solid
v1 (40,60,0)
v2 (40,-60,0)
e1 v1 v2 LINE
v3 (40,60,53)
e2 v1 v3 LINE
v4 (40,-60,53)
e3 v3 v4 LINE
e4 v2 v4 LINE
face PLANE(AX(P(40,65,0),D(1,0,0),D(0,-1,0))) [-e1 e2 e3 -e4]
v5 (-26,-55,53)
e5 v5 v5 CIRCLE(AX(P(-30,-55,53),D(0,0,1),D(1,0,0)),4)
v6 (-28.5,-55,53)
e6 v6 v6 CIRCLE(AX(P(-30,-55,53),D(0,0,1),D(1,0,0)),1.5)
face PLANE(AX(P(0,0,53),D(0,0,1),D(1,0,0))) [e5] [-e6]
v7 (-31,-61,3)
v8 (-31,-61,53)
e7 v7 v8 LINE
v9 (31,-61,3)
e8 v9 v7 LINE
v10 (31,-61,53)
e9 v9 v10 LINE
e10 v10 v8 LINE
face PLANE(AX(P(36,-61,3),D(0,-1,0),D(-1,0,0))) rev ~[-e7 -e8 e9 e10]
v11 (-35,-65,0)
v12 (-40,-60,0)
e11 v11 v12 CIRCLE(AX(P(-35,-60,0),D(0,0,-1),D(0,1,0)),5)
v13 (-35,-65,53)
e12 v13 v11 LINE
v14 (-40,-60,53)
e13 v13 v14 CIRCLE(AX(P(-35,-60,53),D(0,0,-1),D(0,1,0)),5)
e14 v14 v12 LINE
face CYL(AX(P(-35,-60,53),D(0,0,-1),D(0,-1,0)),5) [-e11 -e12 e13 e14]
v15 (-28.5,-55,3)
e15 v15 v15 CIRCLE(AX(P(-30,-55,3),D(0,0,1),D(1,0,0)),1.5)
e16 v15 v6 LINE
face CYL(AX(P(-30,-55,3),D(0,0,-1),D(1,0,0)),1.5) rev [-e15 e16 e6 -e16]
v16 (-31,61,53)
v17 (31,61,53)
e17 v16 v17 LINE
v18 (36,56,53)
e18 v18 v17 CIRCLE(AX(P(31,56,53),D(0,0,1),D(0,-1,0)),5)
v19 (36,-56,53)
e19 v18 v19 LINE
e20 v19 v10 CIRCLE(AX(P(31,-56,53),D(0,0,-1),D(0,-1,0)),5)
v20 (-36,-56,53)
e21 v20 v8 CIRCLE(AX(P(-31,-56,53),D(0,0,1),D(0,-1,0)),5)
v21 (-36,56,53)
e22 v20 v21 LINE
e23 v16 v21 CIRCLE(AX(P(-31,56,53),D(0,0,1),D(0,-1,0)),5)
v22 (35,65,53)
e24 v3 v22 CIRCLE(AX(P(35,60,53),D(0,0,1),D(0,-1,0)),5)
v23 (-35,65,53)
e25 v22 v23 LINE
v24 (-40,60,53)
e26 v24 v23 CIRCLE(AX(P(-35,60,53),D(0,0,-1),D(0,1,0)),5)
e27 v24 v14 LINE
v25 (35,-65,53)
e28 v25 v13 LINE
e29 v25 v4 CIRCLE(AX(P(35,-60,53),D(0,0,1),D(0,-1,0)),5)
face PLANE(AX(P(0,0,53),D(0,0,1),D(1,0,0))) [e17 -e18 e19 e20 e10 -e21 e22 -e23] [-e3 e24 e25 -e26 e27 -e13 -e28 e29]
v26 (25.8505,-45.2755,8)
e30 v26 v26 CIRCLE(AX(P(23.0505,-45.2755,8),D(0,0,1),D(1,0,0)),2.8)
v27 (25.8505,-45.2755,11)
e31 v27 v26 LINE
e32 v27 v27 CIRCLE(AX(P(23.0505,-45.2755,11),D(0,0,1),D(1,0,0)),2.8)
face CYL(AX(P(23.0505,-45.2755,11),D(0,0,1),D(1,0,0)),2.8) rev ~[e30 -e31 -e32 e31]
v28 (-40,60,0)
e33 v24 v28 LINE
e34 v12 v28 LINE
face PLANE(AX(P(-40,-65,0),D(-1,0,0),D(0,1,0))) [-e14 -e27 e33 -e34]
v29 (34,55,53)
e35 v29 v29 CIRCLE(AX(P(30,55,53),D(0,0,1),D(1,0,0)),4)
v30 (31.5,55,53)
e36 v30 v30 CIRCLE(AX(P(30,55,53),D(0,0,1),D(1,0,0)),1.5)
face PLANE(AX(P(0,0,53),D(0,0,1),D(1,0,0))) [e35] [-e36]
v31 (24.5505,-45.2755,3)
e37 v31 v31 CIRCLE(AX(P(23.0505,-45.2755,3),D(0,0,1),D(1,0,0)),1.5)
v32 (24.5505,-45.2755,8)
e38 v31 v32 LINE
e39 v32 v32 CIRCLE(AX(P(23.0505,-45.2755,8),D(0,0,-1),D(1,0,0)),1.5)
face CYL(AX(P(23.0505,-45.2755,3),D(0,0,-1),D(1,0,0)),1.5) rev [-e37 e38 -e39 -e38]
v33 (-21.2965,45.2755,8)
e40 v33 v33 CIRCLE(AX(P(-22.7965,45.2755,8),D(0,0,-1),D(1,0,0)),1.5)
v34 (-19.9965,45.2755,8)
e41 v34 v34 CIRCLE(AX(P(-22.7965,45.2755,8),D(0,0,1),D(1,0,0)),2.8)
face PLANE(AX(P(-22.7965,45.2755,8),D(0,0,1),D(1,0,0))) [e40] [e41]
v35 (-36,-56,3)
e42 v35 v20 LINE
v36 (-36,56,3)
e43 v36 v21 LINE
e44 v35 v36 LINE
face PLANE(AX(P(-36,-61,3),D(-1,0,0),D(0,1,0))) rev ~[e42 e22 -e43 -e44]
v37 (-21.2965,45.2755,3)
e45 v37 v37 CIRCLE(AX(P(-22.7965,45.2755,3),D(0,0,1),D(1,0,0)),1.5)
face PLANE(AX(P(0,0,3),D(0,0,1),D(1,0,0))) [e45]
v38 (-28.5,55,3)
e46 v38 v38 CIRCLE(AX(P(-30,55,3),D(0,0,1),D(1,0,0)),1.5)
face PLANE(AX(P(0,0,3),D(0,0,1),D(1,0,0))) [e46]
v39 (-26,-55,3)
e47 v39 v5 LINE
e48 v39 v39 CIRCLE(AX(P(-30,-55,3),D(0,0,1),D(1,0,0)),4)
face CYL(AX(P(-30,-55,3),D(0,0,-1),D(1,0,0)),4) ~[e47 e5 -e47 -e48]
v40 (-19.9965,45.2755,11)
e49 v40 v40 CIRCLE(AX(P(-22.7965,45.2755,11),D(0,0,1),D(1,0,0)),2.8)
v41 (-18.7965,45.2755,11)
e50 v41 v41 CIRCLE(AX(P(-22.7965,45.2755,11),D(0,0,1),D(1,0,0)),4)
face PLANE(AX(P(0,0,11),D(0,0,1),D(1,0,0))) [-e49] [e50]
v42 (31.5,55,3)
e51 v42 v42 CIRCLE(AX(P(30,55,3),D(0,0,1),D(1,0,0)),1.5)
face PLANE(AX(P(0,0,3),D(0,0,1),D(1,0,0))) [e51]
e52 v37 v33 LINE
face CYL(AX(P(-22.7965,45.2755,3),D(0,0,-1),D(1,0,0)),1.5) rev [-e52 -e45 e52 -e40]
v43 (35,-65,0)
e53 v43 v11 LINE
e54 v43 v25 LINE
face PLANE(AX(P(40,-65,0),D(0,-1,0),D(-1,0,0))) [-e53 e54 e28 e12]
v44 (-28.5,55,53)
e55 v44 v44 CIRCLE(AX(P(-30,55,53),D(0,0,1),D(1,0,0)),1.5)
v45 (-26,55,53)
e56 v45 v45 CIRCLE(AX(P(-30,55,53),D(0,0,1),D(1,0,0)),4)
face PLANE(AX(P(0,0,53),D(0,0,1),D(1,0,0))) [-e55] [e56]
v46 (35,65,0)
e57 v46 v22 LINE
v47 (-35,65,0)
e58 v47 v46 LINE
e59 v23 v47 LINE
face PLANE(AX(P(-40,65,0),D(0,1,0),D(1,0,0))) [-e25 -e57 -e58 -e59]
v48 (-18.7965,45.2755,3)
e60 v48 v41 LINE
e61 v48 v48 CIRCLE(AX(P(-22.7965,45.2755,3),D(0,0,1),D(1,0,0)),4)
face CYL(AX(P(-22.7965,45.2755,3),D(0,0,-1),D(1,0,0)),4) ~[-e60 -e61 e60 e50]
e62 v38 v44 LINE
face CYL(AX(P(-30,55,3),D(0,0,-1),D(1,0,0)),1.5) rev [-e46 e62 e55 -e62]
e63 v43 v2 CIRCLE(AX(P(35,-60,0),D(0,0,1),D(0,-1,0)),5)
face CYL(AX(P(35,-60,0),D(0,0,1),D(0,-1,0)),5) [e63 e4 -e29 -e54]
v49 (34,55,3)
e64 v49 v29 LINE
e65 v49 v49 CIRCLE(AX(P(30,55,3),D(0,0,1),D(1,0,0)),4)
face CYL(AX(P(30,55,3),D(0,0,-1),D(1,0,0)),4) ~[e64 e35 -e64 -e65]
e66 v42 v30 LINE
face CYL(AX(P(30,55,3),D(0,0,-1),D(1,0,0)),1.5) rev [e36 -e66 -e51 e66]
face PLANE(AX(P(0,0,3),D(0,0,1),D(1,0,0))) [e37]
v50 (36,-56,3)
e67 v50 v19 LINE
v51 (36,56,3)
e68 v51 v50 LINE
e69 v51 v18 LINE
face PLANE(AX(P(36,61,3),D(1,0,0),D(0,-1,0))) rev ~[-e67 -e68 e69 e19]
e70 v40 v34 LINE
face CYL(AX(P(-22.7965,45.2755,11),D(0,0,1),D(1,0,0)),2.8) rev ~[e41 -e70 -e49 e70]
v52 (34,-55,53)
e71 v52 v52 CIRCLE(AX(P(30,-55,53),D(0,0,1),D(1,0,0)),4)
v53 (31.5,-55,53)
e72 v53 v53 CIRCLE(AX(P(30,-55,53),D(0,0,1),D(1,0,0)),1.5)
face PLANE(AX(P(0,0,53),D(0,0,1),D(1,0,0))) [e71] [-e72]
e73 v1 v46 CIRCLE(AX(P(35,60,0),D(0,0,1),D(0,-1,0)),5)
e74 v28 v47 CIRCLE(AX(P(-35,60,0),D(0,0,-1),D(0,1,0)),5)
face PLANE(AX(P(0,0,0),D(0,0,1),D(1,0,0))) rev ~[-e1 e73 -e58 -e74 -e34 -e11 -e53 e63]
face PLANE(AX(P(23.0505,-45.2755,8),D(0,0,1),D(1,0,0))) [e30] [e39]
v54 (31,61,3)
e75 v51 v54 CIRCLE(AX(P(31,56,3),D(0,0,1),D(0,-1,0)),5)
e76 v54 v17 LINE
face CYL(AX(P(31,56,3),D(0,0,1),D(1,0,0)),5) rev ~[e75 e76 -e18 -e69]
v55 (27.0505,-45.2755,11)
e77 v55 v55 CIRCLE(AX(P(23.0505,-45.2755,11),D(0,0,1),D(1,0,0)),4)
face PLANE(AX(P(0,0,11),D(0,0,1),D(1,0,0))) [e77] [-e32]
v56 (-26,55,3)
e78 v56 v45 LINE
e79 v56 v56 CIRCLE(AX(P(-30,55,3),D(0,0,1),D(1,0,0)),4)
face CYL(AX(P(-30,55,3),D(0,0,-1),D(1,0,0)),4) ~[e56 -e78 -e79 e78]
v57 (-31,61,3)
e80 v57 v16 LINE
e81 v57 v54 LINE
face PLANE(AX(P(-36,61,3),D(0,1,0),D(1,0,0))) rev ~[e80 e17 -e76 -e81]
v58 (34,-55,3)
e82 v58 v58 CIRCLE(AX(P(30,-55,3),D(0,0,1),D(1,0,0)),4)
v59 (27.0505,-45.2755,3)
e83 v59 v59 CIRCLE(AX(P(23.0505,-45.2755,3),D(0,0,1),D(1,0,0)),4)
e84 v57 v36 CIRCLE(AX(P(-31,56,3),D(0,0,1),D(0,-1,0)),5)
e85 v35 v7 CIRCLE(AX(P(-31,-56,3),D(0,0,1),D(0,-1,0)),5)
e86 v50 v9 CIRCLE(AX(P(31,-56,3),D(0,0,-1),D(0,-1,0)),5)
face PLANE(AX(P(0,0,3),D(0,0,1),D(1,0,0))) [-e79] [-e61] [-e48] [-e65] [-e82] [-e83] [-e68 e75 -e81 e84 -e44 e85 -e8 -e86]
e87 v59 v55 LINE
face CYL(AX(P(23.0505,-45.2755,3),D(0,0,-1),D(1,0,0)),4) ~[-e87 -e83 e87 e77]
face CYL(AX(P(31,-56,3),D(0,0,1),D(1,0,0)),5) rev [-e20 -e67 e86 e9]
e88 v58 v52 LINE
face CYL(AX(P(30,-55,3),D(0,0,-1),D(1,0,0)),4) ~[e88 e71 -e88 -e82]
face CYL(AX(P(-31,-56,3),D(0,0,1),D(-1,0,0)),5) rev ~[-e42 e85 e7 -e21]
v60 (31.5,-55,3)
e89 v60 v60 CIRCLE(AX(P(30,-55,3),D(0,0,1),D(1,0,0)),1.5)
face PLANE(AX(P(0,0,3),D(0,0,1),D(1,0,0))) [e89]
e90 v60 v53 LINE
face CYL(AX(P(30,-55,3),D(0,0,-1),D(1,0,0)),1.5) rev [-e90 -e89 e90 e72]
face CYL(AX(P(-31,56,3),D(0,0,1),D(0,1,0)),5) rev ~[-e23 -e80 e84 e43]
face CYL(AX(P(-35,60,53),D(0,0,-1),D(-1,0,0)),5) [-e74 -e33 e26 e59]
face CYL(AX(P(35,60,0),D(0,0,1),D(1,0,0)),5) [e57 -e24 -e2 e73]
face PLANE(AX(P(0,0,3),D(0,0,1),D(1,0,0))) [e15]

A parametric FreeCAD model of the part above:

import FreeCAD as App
import Part
import Sketcher

V = App.Vector


def edges_at(feature, points):
    """Names of the edges that pass closest to the given points."""
    edges = feature.Shape.Edges
    near = lambda p: min(range(len(edges)), key=lambda i: edges[i].distToShape(Part.Vertex(*p))[0])
    return sorted({f"Edge{near(p) + 1}" for p in points})


def add_polygon(sketch, points):
    """Adds a closed chain of lines whose ends are joined by coincident constraints."""
    first, n = sketch.GeometryCount, len(points)
    for a, b in zip(points, points[1:] + points[:1]):
        sketch.addGeometry(Part.LineSegment(App.Vector(*a, 0), App.Vector(*b, 0)), False)
    for i in range(n):
        sketch.addConstraint(Sketcher.Constraint("Coincident", first + i, 2, first + (i + 1) % n, 1))

doc = App.newDocument("Part")
params = doc.addObject("Spreadsheet::Sheet", "Params")
for row, (alias, value) in enumerate([
    ("sketch1_width", "80 mm"),
    ("sketch1_height", "130 mm"),
    ("pad1_length", "3 mm"),
    ("sketch2_width", "80 mm"),
    ("sketch2_width2", "72 mm"),
    ("sketch2_height", "130 mm"),
    ("sketch2_height2", "122 mm"),
    ("pad2_length", "50 mm"),
    ("sketch3_diameter", "8 mm"),
    ("sketch3_diameter2", "3 mm"),
    ("pad3_length", "8 mm"),
    ("sketch4_diameter", "5.6 mm"),
    ("pocket1_length", "3 mm"),
    ("sketch5_diameter", "5.6 mm"),
    ("pocket2_length", "3 mm"),
    ("sketch6_diameter", "8 mm"),
    ("sketch6_diameter2", "3 mm"),
    ("pad4_length", "50 mm"),
    ("fillet_radius", "5 mm"),
], start=1):
    params.set(f"A{row}", alias)
    params.set(f"B{row}", "=" + value)
    params.setAlias(f"B{row}", alias)

body = doc.addObject("PartDesign::Body", "Body")

sketch1 = body.newObject("Sketcher::SketchObject", "Sketch")
sketch1.AttachmentSupport = (doc.getObject("XY_Plane"), [""])
sketch1.MapMode = "FlatFace"
add_polygon(sketch1, [(-40, -65), (40, -65), (40, 65), (-40, 65)])
sketch1.addConstraint([
    Sketcher.Constraint("Horizontal", 0),
    Sketcher.Constraint("Vertical", 1),
    Sketcher.Constraint("Horizontal", 2),
    Sketcher.Constraint("Vertical", 3),
    Sketcher.Constraint("Symmetric", 0, 2, 2, 2, -1, 1),
    Sketcher.Constraint("DistanceX", 0, 1, 0, 2, 80.0),
    Sketcher.Constraint("DistanceY", 1, 1, 1, 2, 130.0),
])
sketch1.setExpression("Constraints[9]", "Params.sketch1_width")
sketch1.setExpression("Constraints[10]", "Params.sketch1_height")
pad1 = body.newObject("PartDesign::Pad", "Pad")
pad1.Profile = sketch1
pad1.setExpression("Length", "Params.pad1_length")

sketch2 = body.newObject("Sketcher::SketchObject", "Sketch001")
sketch2.AttachmentSupport = (doc.getObject("XY_Plane"), [""])
sketch2.MapMode = "FlatFace"
sketch2.AttachmentOffset = App.Placement(V(0, 0, 3), App.Rotation())
add_polygon(sketch2, [(40, 65), (-40, 65), (-40, -65), (40, -65)])
add_polygon(sketch2, [(36, 61), (36, -61), (-36, -61), (-36, 61)])
sketch2.addConstraint([
    Sketcher.Constraint("Horizontal", 0),
    Sketcher.Constraint("Vertical", 1),
    Sketcher.Constraint("Horizontal", 2),
    Sketcher.Constraint("Vertical", 3),
    Sketcher.Constraint("Vertical", 4),
    Sketcher.Constraint("Horizontal", 5),
    Sketcher.Constraint("Vertical", 6),
    Sketcher.Constraint("Horizontal", 7),
    Sketcher.Constraint("Symmetric", 0, 2, 2, 2, -1, 1),
    Sketcher.Constraint("Symmetric", 4, 2, 6, 2, -1, 1),
    Sketcher.Constraint("DistanceX", 0, 2, 0, 1, 80.0),
    Sketcher.Constraint("DistanceX", 5, 2, 5, 1, 72.0),
    Sketcher.Constraint("DistanceY", 1, 2, 1, 1, 130.0),
    Sketcher.Constraint("DistanceY", 4, 2, 4, 1, 122.0),
])
sketch2.setExpression("Constraints[18]", "Params.sketch2_width")
sketch2.setExpression("Constraints[19]", "Params.sketch2_width2")
sketch2.setExpression("Constraints[20]", "Params.sketch2_height")
sketch2.setExpression("Constraints[21]", "Params.sketch2_height2")
pad2 = body.newObject("PartDesign::Pad", "Pad001")
pad2.Profile = sketch2
pad2.setExpression("Length", "Params.pad2_length")

sketch3 = body.newObject("Sketcher::SketchObject", "Sketch002")
sketch3.AttachmentSupport = (doc.getObject("XY_Plane"), [""])
sketch3.MapMode = "FlatFace"
sketch3.AttachmentOffset = App.Placement(V(0, 0, 3), App.Rotation())
sketch3.addGeometry([
    Part.Circle(V(-22.7965, 45.2755, 0), V(0, 0, 1), 4),
    Part.Circle(V(-22.7965, 45.2755, 0), V(0, 0, 1), 1.5),
    Part.Circle(V(23.0505, -45.2755, 0), V(0, 0, 1), 4),
    Part.Circle(V(23.0505, -45.2755, 0), V(0, 0, 1), 1.5),
], False)
sketch3.addConstraint([
    Sketcher.Constraint("Coincident", 1, 3, 0, 3),
    Sketcher.Constraint("Coincident", 3, 3, 2, 3),
    Sketcher.Constraint("Equal", 0, 2),
    Sketcher.Constraint("Equal", 1, 3),
    Sketcher.Constraint("Diameter", 0, 8.0),
    Sketcher.Constraint("Diameter", 1, 3.0),
    Sketcher.Constraint("DistanceX", 0, 3, 2, 3, 45.847),
    Sketcher.Constraint("DistanceY", 2, 3, 0, 3, 90.551),
    Sketcher.Constraint("DistanceX", 0, 3, -1, 1, 22.7965),
    Sketcher.Constraint("DistanceY", -1, 1, 0, 3, 45.2755),
])
sketch3.setExpression("Constraints[4]", "Params.sketch3_diameter")
sketch3.setExpression("Constraints[5]", "Params.sketch3_diameter2")
pad3 = body.newObject("PartDesign::Pad", "Pad002")
pad3.Profile = sketch3
pad3.setExpression("Length", "Params.pad3_length")

sketch4 = body.newObject("Sketcher::SketchObject", "Sketch003")
sketch4.AttachmentSupport = (doc.getObject("XY_Plane"), [""])
sketch4.MapMode = "FlatFace"
sketch4.AttachmentOffset = App.Placement(V(0, 0, 11), App.Rotation())
sketch4.addGeometry(Part.Circle(V(-22.7965, 45.2755, 0), V(0, 0, 1), 2.8), False)
sketch4.addConstraint([
    Sketcher.Constraint("Diameter", 0, 5.6),
    Sketcher.Constraint("DistanceX", 0, 3, -1, 1, 22.7965),
    Sketcher.Constraint("DistanceY", -1, 1, 0, 3, 45.2755),
])
sketch4.setExpression("Constraints[0]", "Params.sketch4_diameter")
pocket1 = body.newObject("PartDesign::Pocket", "Pocket")
pocket1.Profile = sketch4
pocket1.setExpression("Length", "Params.pocket1_length")

sketch5 = body.newObject("Sketcher::SketchObject", "Sketch004")
sketch5.AttachmentSupport = (doc.getObject("XY_Plane"), [""])
sketch5.MapMode = "FlatFace"
sketch5.AttachmentOffset = App.Placement(V(0, 0, 11), App.Rotation())
sketch5.addGeometry(Part.Circle(V(23.0505, -45.2755, 0), V(0, 0, 1), 2.8), False)
sketch5.addConstraint([
    Sketcher.Constraint("Diameter", 0, 5.6),
    Sketcher.Constraint("DistanceX", -1, 1, 0, 3, 23.0505),
    Sketcher.Constraint("DistanceY", 0, 3, -1, 1, 45.2755),
])
sketch5.setExpression("Constraints[0]", "Params.sketch5_diameter")
pocket2 = body.newObject("PartDesign::Pocket", "Pocket001")
pocket2.Profile = sketch5
pocket2.setExpression("Length", "Params.pocket2_length")

sketch6 = body.newObject("Sketcher::SketchObject", "Sketch005")
sketch6.AttachmentSupport = (doc.getObject("XY_Plane"), [""])
sketch6.MapMode = "FlatFace"
sketch6.AttachmentOffset = App.Placement(V(0, 0, 3), App.Rotation())
sketch6.addGeometry([
    Part.Circle(V(-30, 55, 0), V(0, 0, 1), 4),
    Part.Circle(V(-30, 55, 0), V(0, 0, 1), 1.5),
    Part.Circle(V(30, 55, 0), V(0, 0, 1), 4),
    Part.Circle(V(30, 55, 0), V(0, 0, 1), 1.5),
    Part.Circle(V(30, -55, 0), V(0, 0, 1), 4),
    Part.Circle(V(30, -55, 0), V(0, 0, 1), 1.5),
    Part.Circle(V(-30, -55, 0), V(0, 0, 1), 4),
    Part.Circle(V(-30, -55, 0), V(0, 0, 1), 1.5),
], False)
sketch6.addConstraint([
    Sketcher.Constraint("Coincident", 1, 3, 0, 3),
    Sketcher.Constraint("Coincident", 3, 3, 2, 3),
    Sketcher.Constraint("Coincident", 5, 3, 4, 3),
    Sketcher.Constraint("Coincident", 7, 3, 6, 3),
    Sketcher.Constraint("Equal", 0, 2),
    Sketcher.Constraint("Equal", 1, 3),
    Sketcher.Constraint("Equal", 2, 4),
    Sketcher.Constraint("Equal", 3, 5),
    Sketcher.Constraint("Equal", 4, 6),
    Sketcher.Constraint("Equal", 5, 7),
    Sketcher.Constraint("Symmetric", 0, 3, 4, 3, -1, 1),
    Sketcher.Constraint("Symmetric", 2, 3, 6, 3, -1, 1),
    Sketcher.Constraint("Symmetric", 0, 3, 2, 3, -2),
    Sketcher.Constraint("Diameter", 0, 8.0),
    Sketcher.Constraint("Diameter", 1, 3.0),
    Sketcher.Constraint("DistanceX", 0, 3, -1, 1, 30.0),
    Sketcher.Constraint("DistanceY", -1, 1, 0, 3, 55.0),
])
sketch6.setExpression("Constraints[13]", "Params.sketch6_diameter")
sketch6.setExpression("Constraints[14]", "Params.sketch6_diameter2")
pad4 = body.newObject("PartDesign::Pad", "Pad003")
pad4.Profile = sketch6
pad4.setExpression("Length", "Params.pad4_length")
doc.recompute()

fillet = body.newObject("PartDesign::Fillet", "Fillet")
fillet.Base = (pad4, edges_at(pad4, [
    (40, -65, 26.5),
    (-40, -65, 26.5),
    (-40, 65, 26.5),
    (40, 65, 26.5),
    (-36, -61, 28),
    (36, -61, 28),
    (-36, 61, 28),
    (36, 61, 28),
]))
fillet.setExpression("Radius", "Params.fillet_radius")

doc.recompute()
